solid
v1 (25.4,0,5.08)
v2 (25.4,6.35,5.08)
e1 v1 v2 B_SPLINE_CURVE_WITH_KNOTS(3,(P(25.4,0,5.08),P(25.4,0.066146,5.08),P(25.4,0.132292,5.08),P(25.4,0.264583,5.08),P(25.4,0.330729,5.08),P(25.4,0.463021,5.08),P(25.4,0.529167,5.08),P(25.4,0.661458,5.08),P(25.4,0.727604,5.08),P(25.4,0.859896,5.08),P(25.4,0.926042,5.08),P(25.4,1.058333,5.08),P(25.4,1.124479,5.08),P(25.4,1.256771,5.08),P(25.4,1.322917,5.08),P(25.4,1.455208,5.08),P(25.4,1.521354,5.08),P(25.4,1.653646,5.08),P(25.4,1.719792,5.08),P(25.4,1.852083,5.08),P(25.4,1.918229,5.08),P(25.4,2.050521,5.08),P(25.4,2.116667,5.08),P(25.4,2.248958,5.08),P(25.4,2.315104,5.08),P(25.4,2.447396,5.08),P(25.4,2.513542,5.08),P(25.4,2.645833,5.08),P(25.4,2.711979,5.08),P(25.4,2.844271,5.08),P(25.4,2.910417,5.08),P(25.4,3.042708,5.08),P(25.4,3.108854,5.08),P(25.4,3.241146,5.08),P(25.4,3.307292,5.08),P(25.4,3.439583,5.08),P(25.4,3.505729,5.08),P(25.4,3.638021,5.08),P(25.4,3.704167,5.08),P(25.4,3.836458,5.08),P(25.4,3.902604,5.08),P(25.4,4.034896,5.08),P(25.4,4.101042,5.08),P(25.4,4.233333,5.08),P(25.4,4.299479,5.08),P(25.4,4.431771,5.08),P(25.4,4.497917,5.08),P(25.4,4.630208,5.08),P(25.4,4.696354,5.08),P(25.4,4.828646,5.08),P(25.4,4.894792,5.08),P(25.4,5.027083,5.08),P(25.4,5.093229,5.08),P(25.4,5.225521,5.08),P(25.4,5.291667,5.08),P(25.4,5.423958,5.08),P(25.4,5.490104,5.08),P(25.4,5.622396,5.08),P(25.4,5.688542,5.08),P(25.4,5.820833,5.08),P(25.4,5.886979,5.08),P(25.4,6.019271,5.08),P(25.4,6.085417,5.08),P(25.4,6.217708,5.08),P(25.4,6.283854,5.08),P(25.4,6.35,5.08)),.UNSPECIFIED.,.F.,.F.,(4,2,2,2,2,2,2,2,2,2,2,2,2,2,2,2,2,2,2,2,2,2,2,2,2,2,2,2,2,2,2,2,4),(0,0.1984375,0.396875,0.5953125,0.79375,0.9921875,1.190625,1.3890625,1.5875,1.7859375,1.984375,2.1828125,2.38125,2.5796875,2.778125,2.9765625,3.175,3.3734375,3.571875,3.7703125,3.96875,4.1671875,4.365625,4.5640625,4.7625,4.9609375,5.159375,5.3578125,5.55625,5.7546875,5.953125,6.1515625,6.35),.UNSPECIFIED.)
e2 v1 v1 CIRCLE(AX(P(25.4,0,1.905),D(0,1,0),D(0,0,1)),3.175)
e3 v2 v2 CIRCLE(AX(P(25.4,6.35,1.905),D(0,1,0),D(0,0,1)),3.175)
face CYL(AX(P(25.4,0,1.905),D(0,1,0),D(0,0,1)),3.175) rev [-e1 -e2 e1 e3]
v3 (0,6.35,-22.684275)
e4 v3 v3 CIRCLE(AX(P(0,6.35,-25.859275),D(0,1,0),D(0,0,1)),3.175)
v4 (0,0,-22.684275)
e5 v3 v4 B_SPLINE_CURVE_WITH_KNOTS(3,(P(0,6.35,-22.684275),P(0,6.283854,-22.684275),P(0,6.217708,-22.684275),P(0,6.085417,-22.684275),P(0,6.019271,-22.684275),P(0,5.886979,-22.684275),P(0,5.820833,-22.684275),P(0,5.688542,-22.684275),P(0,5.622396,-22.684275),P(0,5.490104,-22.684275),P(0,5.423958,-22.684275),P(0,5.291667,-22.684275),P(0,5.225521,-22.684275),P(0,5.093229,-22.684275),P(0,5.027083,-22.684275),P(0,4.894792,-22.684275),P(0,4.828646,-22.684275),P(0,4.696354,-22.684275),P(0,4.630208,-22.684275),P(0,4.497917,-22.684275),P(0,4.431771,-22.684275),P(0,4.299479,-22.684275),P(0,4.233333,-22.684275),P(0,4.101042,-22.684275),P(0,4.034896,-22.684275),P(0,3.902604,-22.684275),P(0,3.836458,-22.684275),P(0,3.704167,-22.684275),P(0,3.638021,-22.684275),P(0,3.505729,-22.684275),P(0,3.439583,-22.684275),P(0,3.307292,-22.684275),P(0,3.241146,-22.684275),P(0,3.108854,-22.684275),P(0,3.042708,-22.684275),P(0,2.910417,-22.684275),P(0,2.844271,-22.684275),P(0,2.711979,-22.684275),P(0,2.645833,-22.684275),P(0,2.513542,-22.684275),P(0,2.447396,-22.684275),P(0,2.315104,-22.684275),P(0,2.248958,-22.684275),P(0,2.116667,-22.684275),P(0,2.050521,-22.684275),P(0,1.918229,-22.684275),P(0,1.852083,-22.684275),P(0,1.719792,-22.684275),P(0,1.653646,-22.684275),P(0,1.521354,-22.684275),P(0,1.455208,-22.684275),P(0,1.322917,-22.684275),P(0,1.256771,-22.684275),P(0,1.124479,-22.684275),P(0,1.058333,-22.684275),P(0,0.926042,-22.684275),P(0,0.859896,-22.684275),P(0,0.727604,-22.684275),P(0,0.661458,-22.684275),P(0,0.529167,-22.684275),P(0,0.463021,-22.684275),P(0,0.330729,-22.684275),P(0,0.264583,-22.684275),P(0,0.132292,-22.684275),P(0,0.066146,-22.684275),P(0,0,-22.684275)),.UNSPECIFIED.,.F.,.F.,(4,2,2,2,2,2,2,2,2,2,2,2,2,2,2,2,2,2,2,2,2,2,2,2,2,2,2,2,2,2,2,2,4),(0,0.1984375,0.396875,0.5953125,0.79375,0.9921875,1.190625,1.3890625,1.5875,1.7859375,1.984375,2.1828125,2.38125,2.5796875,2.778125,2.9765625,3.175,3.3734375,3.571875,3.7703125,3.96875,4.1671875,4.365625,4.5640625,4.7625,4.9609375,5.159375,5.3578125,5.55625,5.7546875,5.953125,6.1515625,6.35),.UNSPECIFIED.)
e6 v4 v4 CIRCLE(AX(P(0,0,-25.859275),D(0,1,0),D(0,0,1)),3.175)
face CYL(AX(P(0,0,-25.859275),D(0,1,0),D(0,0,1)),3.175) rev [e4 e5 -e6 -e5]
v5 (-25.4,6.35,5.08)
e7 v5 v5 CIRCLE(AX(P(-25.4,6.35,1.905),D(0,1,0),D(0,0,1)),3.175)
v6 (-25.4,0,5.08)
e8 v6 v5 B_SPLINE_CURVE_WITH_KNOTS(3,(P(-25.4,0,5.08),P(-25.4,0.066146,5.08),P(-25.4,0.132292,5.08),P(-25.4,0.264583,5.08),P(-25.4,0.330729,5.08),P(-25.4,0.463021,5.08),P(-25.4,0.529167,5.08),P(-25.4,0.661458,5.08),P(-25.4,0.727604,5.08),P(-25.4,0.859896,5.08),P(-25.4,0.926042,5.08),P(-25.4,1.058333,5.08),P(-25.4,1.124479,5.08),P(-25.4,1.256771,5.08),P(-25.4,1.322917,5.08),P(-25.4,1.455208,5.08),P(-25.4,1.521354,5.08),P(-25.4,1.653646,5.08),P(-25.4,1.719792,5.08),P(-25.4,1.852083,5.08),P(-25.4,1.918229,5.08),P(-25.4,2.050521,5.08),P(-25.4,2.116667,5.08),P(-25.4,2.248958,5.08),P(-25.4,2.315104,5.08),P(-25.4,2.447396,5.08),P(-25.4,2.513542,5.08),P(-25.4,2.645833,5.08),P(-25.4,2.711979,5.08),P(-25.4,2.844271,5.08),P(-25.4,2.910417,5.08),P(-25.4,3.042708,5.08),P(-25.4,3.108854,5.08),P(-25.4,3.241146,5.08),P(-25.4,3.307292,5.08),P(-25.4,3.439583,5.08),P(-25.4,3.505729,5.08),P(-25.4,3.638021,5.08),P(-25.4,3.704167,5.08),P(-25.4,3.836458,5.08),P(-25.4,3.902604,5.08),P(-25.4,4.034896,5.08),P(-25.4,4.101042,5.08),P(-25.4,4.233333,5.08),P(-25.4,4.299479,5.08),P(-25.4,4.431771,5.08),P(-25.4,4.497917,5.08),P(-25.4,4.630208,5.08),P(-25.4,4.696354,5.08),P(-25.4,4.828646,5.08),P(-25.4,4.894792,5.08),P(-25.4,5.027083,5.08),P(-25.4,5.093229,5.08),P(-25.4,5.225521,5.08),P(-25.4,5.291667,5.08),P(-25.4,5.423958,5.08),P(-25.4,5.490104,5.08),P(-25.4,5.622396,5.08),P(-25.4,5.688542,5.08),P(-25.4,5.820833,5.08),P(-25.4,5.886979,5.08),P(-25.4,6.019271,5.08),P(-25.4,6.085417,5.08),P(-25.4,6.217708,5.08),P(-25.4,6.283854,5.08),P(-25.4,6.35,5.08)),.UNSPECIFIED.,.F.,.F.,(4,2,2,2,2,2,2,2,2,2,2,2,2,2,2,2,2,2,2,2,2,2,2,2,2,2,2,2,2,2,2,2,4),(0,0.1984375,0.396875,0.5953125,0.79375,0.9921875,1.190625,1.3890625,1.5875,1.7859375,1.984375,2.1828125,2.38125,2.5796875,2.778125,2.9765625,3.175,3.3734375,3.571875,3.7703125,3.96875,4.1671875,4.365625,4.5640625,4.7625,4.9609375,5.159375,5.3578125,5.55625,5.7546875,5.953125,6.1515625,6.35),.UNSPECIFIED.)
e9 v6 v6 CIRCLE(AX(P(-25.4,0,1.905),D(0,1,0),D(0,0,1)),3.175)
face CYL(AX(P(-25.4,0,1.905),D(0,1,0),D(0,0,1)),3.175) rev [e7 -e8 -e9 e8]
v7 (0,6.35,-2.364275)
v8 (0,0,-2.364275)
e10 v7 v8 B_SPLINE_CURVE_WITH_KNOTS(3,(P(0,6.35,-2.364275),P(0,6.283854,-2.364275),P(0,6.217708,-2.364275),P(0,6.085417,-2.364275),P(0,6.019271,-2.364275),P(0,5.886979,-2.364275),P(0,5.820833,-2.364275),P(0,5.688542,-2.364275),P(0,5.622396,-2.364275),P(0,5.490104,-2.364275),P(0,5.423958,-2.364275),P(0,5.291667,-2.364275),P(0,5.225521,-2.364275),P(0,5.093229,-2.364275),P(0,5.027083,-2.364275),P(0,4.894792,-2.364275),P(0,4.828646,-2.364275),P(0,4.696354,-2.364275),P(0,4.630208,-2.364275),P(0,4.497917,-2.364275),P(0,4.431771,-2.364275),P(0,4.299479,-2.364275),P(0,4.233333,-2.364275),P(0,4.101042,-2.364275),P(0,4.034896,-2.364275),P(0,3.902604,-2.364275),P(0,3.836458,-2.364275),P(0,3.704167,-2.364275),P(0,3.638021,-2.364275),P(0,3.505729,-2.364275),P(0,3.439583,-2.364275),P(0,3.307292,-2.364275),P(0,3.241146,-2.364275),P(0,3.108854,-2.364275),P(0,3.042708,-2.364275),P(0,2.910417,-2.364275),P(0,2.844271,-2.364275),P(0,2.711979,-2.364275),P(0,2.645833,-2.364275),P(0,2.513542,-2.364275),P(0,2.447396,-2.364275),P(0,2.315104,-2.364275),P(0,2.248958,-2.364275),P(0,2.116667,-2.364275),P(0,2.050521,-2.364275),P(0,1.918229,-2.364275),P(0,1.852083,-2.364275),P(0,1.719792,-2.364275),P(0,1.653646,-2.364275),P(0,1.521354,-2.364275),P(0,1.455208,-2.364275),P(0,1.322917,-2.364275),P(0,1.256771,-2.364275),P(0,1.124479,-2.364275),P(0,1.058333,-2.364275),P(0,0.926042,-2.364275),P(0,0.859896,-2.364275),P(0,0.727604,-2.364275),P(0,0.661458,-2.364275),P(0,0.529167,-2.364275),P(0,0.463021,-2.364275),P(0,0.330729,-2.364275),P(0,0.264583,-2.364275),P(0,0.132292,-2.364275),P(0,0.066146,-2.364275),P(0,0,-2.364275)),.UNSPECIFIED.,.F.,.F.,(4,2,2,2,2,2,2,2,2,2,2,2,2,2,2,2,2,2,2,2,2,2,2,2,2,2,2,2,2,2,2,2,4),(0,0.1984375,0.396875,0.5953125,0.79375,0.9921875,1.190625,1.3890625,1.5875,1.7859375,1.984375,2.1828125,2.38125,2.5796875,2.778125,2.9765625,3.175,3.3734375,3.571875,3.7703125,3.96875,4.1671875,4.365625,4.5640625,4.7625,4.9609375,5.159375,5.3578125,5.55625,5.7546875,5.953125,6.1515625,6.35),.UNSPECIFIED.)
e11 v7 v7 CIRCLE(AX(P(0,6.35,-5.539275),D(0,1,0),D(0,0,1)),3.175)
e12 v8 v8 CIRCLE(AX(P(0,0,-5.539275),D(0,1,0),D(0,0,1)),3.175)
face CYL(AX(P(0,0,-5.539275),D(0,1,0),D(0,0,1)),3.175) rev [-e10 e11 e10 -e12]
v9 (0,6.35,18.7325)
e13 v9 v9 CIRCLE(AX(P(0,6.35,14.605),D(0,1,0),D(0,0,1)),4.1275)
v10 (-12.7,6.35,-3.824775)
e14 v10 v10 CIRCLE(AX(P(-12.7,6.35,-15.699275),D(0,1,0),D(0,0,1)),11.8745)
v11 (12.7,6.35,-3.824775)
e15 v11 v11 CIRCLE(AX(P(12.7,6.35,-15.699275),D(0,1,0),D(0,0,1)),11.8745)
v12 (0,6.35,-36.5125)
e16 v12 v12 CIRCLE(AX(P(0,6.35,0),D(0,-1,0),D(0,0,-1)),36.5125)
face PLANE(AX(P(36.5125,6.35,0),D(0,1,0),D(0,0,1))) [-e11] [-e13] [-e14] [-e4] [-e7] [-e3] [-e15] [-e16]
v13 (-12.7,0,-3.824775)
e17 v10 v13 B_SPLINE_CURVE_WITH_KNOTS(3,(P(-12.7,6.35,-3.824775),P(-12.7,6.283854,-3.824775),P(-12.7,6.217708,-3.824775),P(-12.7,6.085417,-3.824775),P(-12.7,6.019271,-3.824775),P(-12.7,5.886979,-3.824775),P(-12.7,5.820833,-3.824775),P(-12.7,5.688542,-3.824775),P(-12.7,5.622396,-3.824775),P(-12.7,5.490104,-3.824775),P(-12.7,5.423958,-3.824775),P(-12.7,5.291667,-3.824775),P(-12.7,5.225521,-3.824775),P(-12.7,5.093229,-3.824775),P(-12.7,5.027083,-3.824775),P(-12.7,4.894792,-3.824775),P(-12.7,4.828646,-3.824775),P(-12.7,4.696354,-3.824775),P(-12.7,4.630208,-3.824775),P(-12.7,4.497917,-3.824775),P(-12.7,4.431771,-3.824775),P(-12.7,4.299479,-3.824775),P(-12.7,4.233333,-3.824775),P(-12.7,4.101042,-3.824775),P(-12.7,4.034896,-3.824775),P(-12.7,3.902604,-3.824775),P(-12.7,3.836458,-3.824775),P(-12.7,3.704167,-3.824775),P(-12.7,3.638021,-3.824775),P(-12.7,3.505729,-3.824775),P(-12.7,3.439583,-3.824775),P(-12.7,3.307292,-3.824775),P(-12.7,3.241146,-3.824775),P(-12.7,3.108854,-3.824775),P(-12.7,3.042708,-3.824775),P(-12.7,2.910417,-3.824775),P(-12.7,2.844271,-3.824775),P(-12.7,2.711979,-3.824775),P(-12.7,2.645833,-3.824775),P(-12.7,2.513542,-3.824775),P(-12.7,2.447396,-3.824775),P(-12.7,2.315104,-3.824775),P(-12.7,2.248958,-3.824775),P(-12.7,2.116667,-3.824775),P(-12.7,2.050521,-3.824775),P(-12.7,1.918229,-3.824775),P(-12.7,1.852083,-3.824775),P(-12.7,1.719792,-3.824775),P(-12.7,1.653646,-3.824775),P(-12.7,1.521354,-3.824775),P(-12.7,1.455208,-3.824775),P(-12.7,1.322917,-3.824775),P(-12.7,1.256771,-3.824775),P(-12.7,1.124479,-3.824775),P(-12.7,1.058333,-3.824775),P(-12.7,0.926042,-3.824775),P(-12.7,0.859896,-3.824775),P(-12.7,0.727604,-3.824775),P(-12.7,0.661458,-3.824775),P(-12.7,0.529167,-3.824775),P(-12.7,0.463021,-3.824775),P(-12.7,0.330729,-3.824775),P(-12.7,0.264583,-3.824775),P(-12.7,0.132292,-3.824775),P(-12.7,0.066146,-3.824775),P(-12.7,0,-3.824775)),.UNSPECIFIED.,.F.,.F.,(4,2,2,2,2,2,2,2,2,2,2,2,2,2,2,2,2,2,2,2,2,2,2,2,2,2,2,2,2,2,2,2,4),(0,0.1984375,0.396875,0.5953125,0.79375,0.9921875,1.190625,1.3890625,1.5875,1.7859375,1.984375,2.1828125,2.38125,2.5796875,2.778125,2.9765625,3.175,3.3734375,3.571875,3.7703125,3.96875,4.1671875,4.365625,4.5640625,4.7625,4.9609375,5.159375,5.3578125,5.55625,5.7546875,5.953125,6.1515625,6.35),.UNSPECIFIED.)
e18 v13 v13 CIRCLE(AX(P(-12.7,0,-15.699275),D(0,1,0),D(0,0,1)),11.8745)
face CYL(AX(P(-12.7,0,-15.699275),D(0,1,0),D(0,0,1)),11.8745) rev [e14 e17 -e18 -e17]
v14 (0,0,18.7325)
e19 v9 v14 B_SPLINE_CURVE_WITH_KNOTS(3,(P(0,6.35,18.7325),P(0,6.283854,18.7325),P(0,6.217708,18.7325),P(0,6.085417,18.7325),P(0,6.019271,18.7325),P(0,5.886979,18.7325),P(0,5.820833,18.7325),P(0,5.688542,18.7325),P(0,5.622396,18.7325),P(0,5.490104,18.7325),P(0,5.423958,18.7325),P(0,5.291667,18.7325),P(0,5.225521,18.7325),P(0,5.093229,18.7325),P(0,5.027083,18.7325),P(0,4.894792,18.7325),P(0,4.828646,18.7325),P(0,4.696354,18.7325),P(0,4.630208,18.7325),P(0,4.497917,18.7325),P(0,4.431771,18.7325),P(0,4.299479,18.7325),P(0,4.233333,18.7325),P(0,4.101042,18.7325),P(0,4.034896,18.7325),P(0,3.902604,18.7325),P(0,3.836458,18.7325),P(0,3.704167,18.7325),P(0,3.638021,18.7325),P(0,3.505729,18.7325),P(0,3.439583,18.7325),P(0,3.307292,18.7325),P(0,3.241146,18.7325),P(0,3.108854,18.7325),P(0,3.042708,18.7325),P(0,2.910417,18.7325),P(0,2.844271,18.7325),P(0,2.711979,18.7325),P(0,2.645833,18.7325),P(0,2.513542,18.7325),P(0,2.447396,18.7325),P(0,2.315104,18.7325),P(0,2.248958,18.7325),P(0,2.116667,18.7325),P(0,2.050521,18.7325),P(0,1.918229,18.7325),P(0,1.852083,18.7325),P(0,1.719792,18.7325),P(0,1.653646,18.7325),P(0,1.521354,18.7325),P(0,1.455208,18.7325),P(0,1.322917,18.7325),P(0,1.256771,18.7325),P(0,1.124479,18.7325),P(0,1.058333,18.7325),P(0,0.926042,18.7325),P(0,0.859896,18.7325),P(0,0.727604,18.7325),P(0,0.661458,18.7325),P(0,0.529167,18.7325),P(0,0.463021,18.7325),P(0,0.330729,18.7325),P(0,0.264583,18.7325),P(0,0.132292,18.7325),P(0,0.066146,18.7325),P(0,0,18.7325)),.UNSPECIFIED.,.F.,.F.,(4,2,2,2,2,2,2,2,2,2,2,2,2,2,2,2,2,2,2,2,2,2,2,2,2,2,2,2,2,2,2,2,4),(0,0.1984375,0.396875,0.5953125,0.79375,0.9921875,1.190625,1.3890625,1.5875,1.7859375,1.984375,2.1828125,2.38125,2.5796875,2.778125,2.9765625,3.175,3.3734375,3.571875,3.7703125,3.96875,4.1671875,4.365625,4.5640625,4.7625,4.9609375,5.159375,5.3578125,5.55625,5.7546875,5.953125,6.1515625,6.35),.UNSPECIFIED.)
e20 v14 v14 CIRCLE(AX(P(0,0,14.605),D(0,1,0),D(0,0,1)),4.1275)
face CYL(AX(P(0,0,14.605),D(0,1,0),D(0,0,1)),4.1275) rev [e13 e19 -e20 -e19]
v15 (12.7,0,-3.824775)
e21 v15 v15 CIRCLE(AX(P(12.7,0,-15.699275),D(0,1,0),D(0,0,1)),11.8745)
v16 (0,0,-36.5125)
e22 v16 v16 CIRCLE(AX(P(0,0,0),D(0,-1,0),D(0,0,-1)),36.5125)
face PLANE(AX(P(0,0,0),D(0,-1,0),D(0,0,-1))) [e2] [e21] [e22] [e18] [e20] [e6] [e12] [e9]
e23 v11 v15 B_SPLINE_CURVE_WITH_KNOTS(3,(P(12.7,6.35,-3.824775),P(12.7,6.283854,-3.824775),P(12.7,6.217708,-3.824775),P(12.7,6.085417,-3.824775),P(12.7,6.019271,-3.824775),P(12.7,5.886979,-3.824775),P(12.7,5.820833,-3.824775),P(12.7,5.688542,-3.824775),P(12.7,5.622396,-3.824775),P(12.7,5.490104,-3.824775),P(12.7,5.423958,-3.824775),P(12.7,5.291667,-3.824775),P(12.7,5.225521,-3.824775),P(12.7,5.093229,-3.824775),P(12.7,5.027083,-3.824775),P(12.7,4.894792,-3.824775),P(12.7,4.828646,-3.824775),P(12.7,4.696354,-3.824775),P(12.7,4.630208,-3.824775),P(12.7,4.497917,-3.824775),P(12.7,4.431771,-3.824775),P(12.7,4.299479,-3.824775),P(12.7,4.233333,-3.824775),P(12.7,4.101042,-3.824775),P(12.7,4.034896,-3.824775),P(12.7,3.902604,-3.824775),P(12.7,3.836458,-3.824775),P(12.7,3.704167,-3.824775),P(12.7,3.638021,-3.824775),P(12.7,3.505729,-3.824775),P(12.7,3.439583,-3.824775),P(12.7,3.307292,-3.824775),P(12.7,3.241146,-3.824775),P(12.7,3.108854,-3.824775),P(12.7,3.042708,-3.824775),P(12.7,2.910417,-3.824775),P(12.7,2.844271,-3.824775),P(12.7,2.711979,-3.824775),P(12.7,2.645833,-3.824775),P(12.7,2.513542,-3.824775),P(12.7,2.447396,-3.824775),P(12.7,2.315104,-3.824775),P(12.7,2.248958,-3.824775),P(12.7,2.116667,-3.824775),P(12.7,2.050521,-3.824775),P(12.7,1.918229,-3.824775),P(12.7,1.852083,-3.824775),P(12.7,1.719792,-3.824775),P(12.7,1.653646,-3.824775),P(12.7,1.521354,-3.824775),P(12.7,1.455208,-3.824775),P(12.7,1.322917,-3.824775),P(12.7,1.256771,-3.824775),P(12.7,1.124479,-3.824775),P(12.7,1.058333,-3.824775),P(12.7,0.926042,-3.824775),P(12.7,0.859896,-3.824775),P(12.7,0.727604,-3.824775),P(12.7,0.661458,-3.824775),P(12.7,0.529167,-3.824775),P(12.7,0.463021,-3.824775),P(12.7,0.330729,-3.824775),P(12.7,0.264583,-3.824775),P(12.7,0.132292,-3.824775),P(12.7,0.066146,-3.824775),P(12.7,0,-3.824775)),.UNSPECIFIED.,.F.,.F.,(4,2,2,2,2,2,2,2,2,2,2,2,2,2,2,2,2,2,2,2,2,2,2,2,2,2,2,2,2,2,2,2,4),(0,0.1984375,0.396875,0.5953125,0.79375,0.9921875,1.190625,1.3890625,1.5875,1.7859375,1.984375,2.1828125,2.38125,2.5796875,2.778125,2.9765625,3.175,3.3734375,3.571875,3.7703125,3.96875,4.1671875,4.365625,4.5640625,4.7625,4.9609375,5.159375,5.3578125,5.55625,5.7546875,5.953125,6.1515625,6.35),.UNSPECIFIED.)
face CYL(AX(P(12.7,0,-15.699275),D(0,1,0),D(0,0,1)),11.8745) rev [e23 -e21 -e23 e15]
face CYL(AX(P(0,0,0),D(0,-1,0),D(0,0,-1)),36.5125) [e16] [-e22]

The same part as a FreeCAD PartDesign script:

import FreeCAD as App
import Part
import Sketcher
from FreeCAD import Vector
Q = App.Units.Quantity


def add_polygon(sketch, points):
    """Adds a closed chain of lines whose ends are joined by coincident constraints."""
    first, n = sketch.GeometryCount, len(points)
    for a, b in zip(points, points[1:] + points[:1]):
        sketch.addGeometry(Part.LineSegment(App.Vector(*a, 0), App.Vector(*b, 0)), False)
    for i in range(n):
        sketch.addConstraint(Sketcher.Constraint("Coincident", first + i, 2, first + (i + 1) % n, 1))

doc = App.newDocument("Part")
body = doc.addObject("PartDesign::Body", "Body")

sketch1 = body.newObject("Sketcher::SketchObject", "Sketch")
sketch1.AttachmentSupport = (doc.getObject("XY_Plane"), [""])
sketch1.MapMode = "FlatFace"
add_polygon(sketch1, [(0, 6), (0, 0), (37, 0), (37, 6)])
sketch1.addConstraint(Sketcher.Constraint("Vertical", 0))
sketch1.addConstraint(Sketcher.Constraint("Horizontal", 1))
sketch1.addConstraint(Sketcher.Constraint("Vertical", 2))
sketch1.addConstraint(Sketcher.Constraint("Horizontal", 3))
sketch1.addConstraint(Sketcher.Constraint("Coincident", 0, 2, -1, 1))
sketch1.addConstraint(Sketcher.Constraint("DistanceY", 0, 2, 0, 1, Q("0.25 in")))
sketch1.addConstraint(Sketcher.Constraint("DistanceX", 1, 1, 1, 2, Q("1.4375 in")))
revolution = body.newObject("PartDesign::Revolution", "Revolution")
revolution.Profile = sketch1
revolution.ReferenceAxis = (sketch1, ["V_Axis"])
revolution.Angle = 360

sketch2 = body.newObject("Sketcher::SketchObject", "Sketch001")
sketch2.AttachmentSupport = (doc.getObject("XZ_Plane"), [""])
sketch2.MapMode = "FlatFace"
sketch2.AttachmentOffset = App.Placement(Vector(0, 0, -0.25 * 25.4), App.Rotation())
sketch2.addGeometry(Part.Circle(Vector(-12.7, -15.7, 0), Vector(0, 0, 1), 11.9), False)
sketch2.addGeometry(Part.Circle(Vector(12.7, -15.7, 0), Vector(0, 0, 1), 11.9), False)
sketch2.addGeometry(Part.Circle(Vector(0, -25.9, 0), Vector(0, 0, 1), 3.2), False)
sketch2.addGeometry(Part.Circle(Vector(0, -5.5, 0), Vector(0, 0, 1), 3.2), False)
sketch2.addGeometry(Part.Circle(Vector(0, 14.6, 0), Vector(0, 0, 1), 4.1), False)
sketch2.addConstraint(Sketcher.Constraint("Equal", 0, 1))
sketch2.addConstraint(Sketcher.Constraint("Equal", 2, 3))
sketch2.addConstraint(Sketcher.Constraint("Symmetric", 0, 3, 1, 3, -2))
sketch2.addConstraint(Sketcher.Constraint("PointOnObject", 2, 3, -2))
sketch2.addConstraint(Sketcher.Constraint("PointOnObject", 3, 3, -2))
sketch2.addConstraint(Sketcher.Constraint("PointOnObject", 4, 3, -2))
sketch2.addConstraint(Sketcher.Constraint("Diameter", 2, Q("0.25 in")))
sketch2.addConstraint(Sketcher.Constraint("Diameter", 0, Q("0.935 in")))
sketch2.addConstraint(Sketcher.Constraint("Diameter", 4, Q("0.325 in")))
sketch2.addConstraint(Sketcher.Constraint("DistanceX", 0, 3, 1, 3, Q("1 in")))
sketch2.addConstraint(Sketcher.Constraint("DistanceY", 2, 3, 0, 3, Q("0.4 in")))
sketch2.addConstraint(Sketcher.Constraint("DistanceY", 0, 3, 3, 3, Q("0.4 in")))
sketch2.addConstraint(Sketcher.Constraint("DistanceY", -1, 1, 4, 3, Q("0.575 in")))
sketch2.addConstraint(Sketcher.Constraint("DistanceY", 0, 3, -1, 1, Q("15.699275 mm")))
pocket1 = body.newObject("PartDesign::Pocket", "Pocket")
pocket1.Profile = sketch2
pocket1.Type = "ThroughAll"
pocket1.Midplane = True

sketch3 = body.newObject("Sketcher::SketchObject", "Sketch002")
sketch3.AttachmentSupport = (doc.getObject("XZ_Plane"), [""])
sketch3.MapMode = "FlatFace"
sketch3.AttachmentOffset = App.Placement(Vector(0, 0, -0.25 * 25.4), App.Rotation())
sketch3.addGeometry(Part.Circle(Vector(-25.4, 1.9, 0), Vector(0, 0, 1), 3.2), False)
sketch3.addGeometry(Part.Circle(Vector(25.4, 1.9, 0), Vector(0, 0, 1), 3.2), False)
sketch3.addConstraint(Sketcher.Constraint("Equal", 0, 1))
sketch3.addConstraint(Sketcher.Constraint("Symmetric", 0, 3, 1, 3, -2))
sketch3.addConstraint(Sketcher.Constraint("Diameter", 0, Q("0.25 in")))
sketch3.addConstraint(Sketcher.Constraint("DistanceX", 0, 3, -1, 1, Q("1 in")))
sketch3.addConstraint(Sketcher.Constraint("DistanceY", -1, 1, 0, 3, Q("0.075 in")))
pocket2 = body.newObject("PartDesign::Pocket", "Pocket001")
pocket2.Profile = sketch3
pocket2.Type = "ThroughAll"
pocket2.Midplane = True

doc.recompute()
